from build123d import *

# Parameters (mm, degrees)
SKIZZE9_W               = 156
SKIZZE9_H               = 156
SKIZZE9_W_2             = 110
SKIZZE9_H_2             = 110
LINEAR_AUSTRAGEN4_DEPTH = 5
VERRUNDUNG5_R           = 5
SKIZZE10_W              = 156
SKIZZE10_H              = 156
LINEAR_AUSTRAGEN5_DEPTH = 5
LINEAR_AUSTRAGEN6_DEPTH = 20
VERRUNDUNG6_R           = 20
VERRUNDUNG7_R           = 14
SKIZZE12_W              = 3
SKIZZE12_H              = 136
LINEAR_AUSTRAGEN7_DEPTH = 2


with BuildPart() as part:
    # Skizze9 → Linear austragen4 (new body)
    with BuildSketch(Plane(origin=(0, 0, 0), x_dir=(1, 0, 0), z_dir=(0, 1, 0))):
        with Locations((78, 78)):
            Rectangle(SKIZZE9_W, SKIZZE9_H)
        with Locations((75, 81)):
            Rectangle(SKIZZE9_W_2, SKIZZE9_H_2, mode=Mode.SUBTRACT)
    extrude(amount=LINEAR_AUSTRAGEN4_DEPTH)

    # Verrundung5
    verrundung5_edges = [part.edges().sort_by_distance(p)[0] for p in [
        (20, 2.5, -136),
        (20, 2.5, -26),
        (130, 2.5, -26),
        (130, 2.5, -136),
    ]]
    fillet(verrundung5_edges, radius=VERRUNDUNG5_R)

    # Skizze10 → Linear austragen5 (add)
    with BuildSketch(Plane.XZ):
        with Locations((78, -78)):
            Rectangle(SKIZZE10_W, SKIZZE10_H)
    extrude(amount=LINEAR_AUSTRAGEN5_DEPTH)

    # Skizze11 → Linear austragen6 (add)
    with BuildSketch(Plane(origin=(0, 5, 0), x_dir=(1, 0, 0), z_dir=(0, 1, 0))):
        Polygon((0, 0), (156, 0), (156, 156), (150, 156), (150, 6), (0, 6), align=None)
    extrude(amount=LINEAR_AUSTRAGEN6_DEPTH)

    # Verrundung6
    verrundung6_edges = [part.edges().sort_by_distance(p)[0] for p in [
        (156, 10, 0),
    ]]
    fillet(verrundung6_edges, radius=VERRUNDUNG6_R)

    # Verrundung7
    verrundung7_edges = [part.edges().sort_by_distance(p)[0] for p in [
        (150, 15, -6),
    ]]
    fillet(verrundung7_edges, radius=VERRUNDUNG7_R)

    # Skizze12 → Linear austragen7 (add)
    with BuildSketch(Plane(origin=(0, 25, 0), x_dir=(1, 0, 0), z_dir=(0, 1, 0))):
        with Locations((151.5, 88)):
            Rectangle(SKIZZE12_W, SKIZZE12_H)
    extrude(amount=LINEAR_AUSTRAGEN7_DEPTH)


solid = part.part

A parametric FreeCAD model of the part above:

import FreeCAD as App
import Part
import Sketcher
from FreeCAD import Vector
Q = App.Units.Quantity


def edges_at(feature, points):
    """Names of the edges that pass closest to the given points."""
    edges = feature.Shape.Edges
    near = lambda p: min(range(len(edges)), key=lambda i: edges[i].distToShape(Part.Vertex(*p))[0])
    return sorted({f"Edge{near(p) + 1}" for p in points})


def add_polygon(sketch, points):
    """Adds a closed chain of lines whose ends are joined by coincident constraints."""
    first, n = sketch.GeometryCount, len(points)
    for a, b in zip(points, points[1:] + points[:1]):
        sketch.addGeometry(Part.LineSegment(App.Vector(*a, 0), App.Vector(*b, 0)), False)
    for i in range(n):
        sketch.addConstraint(Sketcher.Constraint("Coincident", first + i, 2, first + (i + 1) % n, 1))

doc = App.newDocument("Part")
body = doc.addObject("PartDesign::Body", "Body")

sketch1 = doc.addObject("Sketcher::SketchObject", "Sketch")
body.addObject(sketch1)
sketch1.AttachmentSupport = (doc.XZ_Plane, [""])
sketch1.MapMode = "FlatFace"
add_polygon(sketch1, [(0, -156), (0, 0), (156, 0), (156, -156)])
add_polygon(sketch1, [(130, -26), (20, -26), (20, -136), (130, -136)])
sketch1.addConstraint([
    Sketcher.Constraint("Vertical", 0),
    Sketcher.Constraint("Horizontal", 1),
    Sketcher.Constraint("Vertical", 2),
    Sketcher.Constraint("Horizontal", 3),
    Sketcher.Constraint("Horizontal", 4),
    Sketcher.Constraint("Vertical", 5),
    Sketcher.Constraint("Horizontal", 6),
    Sketcher.Constraint("Vertical", 7),
    Sketcher.Constraint("Coincident", 0, 2, -1, 1),
    Sketcher.Constraint("Equal", 3, 0),
    Sketcher.Constraint("Equal", 6, 5),
    Sketcher.Constraint("DistanceX", 1, 1, 1, 2, Q("156 mm")),
    Sketcher.Constraint("DistanceX", 4, 2, 4, 1, Q("110 mm")),
    Sketcher.Constraint("DistanceX", -1, 1, 4, 2, Q("20 mm")),
    Sketcher.Constraint("DistanceY", 4, 2, -1, 1, Q("26 mm")),
])
pad1 = doc.addObject("PartDesign::Pad", "Pad")
body.addObject(pad1)
pad1.Profile = sketch1
pad1.Length = 5
pad1.Reversed = True
doc.recompute()

fillet = doc.addObject("PartDesign::Fillet", "Fillet")
body.addObject(fillet)
fillet.Base = (pad1, edges_at(pad1, [
    (20, 2.5, -136),
    (20, 2.5, -26),
    (130, 2.5, -26),
    (130, 2.5, -136),
]))
fillet.Radius = 5

sketch2 = doc.addObject("Sketcher::SketchObject", "Sketch001")
body.addObject(sketch2)
sketch2.AttachmentSupport = (doc.XZ_Plane, [""])
sketch2.MapMode = "FlatFace"
add_polygon(sketch2, [(0, 0), (0, -156), (156, -156), (156, 0)])
sketch2.addConstraint([
    Sketcher.Constraint("Vertical", 0),
    Sketcher.Constraint("Horizontal", 1),
    Sketcher.Constraint("Vertical", 2),
    Sketcher.Constraint("Horizontal", 3),
    Sketcher.Constraint("Coincident", 3, 2, -1, 1),
    Sketcher.Constraint("Equal", 3, 0),
    Sketcher.Constraint("DistanceX", 1, 1, 1, 2, Q("156 mm")),
])
pad2 = doc.addObject("PartDesign::Pad", "Pad001")
body.addObject(pad2)
pad2.Profile = sketch2
pad2.Length = 5

sketch3 = doc.addObject("Sketcher::SketchObject", "Sketch002")
body.addObject(sketch3)
sketch3.AttachmentSupport = (doc.XZ_Plane, [""])
sketch3.MapMode = "FlatFace"
sketch3.AttachmentOffset = App.Placement(Vector(0, 0, -5), App.Rotation())
add_polygon(sketch3, [(0, 0), (156, 0), (156, -156), (150, -156), (150, -6), (0, -6)])
sketch3.addConstraint([
    Sketcher.Constraint("Horizontal", 0),
    Sketcher.Constraint("Vertical", 1),
    Sketcher.Constraint("Horizontal", 2),
    Sketcher.Constraint("Vertical", 3),
    Sketcher.Constraint("Horizontal", 4),
    Sketcher.Constraint("Vertical", 5),
    Sketcher.Constraint("Coincident", 5, 2, -1, 1),
    Sketcher.Constraint("Equal", 0, 1),
    Sketcher.Constraint("Equal", 4, 3),
    Sketcher.Constraint("DistanceX", 0, 1, 0, 2, Q("156 mm")),
    Sketcher.Constraint("DistanceX", 2, 2, 2, 1, Q("6 mm")),
])
pad3 = doc.addObject("PartDesign::Pad", "Pad002")
body.addObject(pad3)
pad3.Profile = sketch3
pad3.Length = 20
pad3.Reversed = True
doc.recompute()

fillet2 = doc.addObject("PartDesign::Fillet", "Fillet001")
body.addObject(fillet2)
fillet2.Base = (pad3, edges_at(pad3, [(156, 10, 0)]))
fillet2.Radius = 20
doc.recompute()

fillet3 = doc.addObject("PartDesign::Fillet", "Fillet002")
body.addObject(fillet3)
fillet3.Base = (fillet2, edges_at(fillet2, [(150, 15, -6)]))
fillet3.Radius = 14

sketch4 = doc.addObject("Sketcher::SketchObject", "Sketch003")
body.addObject(sketch4)
sketch4.AttachmentSupport = (doc.XZ_Plane, [""])
sketch4.MapMode = "FlatFace"
sketch4.AttachmentOffset = App.Placement(Vector(0, 0, -25), App.Rotation())
add_polygon(sketch4, [(150, -156), (150, -20), (153, -20), (153, -156)])
sketch4.addConstraint([
    Sketcher.Constraint("Vertical", 0),
    Sketcher.Constraint("Horizontal", 1),
    Sketcher.Constraint("Vertical", 2),
    Sketcher.Constraint("Horizontal", 3),
    Sketcher.Constraint("DistanceX", 1, 1, 1, 2, Q("3 mm")),
    Sketcher.Constraint("DistanceY", 0, 1, 0, 2, Q("136 mm")),
    Sketcher.Constraint("DistanceX", -1, 1, 0, 2, Q("150 mm")),
    Sketcher.Constraint("DistanceY", 0, 2, -1, 1, Q("20 mm")),
])
pad4 = doc.addObject("PartDesign::Pad", "Pad003")
body.addObject(pad4)
pad4.Profile = sketch4
pad4.Length = 2
pad4.Reversed = True

doc.recompute()
